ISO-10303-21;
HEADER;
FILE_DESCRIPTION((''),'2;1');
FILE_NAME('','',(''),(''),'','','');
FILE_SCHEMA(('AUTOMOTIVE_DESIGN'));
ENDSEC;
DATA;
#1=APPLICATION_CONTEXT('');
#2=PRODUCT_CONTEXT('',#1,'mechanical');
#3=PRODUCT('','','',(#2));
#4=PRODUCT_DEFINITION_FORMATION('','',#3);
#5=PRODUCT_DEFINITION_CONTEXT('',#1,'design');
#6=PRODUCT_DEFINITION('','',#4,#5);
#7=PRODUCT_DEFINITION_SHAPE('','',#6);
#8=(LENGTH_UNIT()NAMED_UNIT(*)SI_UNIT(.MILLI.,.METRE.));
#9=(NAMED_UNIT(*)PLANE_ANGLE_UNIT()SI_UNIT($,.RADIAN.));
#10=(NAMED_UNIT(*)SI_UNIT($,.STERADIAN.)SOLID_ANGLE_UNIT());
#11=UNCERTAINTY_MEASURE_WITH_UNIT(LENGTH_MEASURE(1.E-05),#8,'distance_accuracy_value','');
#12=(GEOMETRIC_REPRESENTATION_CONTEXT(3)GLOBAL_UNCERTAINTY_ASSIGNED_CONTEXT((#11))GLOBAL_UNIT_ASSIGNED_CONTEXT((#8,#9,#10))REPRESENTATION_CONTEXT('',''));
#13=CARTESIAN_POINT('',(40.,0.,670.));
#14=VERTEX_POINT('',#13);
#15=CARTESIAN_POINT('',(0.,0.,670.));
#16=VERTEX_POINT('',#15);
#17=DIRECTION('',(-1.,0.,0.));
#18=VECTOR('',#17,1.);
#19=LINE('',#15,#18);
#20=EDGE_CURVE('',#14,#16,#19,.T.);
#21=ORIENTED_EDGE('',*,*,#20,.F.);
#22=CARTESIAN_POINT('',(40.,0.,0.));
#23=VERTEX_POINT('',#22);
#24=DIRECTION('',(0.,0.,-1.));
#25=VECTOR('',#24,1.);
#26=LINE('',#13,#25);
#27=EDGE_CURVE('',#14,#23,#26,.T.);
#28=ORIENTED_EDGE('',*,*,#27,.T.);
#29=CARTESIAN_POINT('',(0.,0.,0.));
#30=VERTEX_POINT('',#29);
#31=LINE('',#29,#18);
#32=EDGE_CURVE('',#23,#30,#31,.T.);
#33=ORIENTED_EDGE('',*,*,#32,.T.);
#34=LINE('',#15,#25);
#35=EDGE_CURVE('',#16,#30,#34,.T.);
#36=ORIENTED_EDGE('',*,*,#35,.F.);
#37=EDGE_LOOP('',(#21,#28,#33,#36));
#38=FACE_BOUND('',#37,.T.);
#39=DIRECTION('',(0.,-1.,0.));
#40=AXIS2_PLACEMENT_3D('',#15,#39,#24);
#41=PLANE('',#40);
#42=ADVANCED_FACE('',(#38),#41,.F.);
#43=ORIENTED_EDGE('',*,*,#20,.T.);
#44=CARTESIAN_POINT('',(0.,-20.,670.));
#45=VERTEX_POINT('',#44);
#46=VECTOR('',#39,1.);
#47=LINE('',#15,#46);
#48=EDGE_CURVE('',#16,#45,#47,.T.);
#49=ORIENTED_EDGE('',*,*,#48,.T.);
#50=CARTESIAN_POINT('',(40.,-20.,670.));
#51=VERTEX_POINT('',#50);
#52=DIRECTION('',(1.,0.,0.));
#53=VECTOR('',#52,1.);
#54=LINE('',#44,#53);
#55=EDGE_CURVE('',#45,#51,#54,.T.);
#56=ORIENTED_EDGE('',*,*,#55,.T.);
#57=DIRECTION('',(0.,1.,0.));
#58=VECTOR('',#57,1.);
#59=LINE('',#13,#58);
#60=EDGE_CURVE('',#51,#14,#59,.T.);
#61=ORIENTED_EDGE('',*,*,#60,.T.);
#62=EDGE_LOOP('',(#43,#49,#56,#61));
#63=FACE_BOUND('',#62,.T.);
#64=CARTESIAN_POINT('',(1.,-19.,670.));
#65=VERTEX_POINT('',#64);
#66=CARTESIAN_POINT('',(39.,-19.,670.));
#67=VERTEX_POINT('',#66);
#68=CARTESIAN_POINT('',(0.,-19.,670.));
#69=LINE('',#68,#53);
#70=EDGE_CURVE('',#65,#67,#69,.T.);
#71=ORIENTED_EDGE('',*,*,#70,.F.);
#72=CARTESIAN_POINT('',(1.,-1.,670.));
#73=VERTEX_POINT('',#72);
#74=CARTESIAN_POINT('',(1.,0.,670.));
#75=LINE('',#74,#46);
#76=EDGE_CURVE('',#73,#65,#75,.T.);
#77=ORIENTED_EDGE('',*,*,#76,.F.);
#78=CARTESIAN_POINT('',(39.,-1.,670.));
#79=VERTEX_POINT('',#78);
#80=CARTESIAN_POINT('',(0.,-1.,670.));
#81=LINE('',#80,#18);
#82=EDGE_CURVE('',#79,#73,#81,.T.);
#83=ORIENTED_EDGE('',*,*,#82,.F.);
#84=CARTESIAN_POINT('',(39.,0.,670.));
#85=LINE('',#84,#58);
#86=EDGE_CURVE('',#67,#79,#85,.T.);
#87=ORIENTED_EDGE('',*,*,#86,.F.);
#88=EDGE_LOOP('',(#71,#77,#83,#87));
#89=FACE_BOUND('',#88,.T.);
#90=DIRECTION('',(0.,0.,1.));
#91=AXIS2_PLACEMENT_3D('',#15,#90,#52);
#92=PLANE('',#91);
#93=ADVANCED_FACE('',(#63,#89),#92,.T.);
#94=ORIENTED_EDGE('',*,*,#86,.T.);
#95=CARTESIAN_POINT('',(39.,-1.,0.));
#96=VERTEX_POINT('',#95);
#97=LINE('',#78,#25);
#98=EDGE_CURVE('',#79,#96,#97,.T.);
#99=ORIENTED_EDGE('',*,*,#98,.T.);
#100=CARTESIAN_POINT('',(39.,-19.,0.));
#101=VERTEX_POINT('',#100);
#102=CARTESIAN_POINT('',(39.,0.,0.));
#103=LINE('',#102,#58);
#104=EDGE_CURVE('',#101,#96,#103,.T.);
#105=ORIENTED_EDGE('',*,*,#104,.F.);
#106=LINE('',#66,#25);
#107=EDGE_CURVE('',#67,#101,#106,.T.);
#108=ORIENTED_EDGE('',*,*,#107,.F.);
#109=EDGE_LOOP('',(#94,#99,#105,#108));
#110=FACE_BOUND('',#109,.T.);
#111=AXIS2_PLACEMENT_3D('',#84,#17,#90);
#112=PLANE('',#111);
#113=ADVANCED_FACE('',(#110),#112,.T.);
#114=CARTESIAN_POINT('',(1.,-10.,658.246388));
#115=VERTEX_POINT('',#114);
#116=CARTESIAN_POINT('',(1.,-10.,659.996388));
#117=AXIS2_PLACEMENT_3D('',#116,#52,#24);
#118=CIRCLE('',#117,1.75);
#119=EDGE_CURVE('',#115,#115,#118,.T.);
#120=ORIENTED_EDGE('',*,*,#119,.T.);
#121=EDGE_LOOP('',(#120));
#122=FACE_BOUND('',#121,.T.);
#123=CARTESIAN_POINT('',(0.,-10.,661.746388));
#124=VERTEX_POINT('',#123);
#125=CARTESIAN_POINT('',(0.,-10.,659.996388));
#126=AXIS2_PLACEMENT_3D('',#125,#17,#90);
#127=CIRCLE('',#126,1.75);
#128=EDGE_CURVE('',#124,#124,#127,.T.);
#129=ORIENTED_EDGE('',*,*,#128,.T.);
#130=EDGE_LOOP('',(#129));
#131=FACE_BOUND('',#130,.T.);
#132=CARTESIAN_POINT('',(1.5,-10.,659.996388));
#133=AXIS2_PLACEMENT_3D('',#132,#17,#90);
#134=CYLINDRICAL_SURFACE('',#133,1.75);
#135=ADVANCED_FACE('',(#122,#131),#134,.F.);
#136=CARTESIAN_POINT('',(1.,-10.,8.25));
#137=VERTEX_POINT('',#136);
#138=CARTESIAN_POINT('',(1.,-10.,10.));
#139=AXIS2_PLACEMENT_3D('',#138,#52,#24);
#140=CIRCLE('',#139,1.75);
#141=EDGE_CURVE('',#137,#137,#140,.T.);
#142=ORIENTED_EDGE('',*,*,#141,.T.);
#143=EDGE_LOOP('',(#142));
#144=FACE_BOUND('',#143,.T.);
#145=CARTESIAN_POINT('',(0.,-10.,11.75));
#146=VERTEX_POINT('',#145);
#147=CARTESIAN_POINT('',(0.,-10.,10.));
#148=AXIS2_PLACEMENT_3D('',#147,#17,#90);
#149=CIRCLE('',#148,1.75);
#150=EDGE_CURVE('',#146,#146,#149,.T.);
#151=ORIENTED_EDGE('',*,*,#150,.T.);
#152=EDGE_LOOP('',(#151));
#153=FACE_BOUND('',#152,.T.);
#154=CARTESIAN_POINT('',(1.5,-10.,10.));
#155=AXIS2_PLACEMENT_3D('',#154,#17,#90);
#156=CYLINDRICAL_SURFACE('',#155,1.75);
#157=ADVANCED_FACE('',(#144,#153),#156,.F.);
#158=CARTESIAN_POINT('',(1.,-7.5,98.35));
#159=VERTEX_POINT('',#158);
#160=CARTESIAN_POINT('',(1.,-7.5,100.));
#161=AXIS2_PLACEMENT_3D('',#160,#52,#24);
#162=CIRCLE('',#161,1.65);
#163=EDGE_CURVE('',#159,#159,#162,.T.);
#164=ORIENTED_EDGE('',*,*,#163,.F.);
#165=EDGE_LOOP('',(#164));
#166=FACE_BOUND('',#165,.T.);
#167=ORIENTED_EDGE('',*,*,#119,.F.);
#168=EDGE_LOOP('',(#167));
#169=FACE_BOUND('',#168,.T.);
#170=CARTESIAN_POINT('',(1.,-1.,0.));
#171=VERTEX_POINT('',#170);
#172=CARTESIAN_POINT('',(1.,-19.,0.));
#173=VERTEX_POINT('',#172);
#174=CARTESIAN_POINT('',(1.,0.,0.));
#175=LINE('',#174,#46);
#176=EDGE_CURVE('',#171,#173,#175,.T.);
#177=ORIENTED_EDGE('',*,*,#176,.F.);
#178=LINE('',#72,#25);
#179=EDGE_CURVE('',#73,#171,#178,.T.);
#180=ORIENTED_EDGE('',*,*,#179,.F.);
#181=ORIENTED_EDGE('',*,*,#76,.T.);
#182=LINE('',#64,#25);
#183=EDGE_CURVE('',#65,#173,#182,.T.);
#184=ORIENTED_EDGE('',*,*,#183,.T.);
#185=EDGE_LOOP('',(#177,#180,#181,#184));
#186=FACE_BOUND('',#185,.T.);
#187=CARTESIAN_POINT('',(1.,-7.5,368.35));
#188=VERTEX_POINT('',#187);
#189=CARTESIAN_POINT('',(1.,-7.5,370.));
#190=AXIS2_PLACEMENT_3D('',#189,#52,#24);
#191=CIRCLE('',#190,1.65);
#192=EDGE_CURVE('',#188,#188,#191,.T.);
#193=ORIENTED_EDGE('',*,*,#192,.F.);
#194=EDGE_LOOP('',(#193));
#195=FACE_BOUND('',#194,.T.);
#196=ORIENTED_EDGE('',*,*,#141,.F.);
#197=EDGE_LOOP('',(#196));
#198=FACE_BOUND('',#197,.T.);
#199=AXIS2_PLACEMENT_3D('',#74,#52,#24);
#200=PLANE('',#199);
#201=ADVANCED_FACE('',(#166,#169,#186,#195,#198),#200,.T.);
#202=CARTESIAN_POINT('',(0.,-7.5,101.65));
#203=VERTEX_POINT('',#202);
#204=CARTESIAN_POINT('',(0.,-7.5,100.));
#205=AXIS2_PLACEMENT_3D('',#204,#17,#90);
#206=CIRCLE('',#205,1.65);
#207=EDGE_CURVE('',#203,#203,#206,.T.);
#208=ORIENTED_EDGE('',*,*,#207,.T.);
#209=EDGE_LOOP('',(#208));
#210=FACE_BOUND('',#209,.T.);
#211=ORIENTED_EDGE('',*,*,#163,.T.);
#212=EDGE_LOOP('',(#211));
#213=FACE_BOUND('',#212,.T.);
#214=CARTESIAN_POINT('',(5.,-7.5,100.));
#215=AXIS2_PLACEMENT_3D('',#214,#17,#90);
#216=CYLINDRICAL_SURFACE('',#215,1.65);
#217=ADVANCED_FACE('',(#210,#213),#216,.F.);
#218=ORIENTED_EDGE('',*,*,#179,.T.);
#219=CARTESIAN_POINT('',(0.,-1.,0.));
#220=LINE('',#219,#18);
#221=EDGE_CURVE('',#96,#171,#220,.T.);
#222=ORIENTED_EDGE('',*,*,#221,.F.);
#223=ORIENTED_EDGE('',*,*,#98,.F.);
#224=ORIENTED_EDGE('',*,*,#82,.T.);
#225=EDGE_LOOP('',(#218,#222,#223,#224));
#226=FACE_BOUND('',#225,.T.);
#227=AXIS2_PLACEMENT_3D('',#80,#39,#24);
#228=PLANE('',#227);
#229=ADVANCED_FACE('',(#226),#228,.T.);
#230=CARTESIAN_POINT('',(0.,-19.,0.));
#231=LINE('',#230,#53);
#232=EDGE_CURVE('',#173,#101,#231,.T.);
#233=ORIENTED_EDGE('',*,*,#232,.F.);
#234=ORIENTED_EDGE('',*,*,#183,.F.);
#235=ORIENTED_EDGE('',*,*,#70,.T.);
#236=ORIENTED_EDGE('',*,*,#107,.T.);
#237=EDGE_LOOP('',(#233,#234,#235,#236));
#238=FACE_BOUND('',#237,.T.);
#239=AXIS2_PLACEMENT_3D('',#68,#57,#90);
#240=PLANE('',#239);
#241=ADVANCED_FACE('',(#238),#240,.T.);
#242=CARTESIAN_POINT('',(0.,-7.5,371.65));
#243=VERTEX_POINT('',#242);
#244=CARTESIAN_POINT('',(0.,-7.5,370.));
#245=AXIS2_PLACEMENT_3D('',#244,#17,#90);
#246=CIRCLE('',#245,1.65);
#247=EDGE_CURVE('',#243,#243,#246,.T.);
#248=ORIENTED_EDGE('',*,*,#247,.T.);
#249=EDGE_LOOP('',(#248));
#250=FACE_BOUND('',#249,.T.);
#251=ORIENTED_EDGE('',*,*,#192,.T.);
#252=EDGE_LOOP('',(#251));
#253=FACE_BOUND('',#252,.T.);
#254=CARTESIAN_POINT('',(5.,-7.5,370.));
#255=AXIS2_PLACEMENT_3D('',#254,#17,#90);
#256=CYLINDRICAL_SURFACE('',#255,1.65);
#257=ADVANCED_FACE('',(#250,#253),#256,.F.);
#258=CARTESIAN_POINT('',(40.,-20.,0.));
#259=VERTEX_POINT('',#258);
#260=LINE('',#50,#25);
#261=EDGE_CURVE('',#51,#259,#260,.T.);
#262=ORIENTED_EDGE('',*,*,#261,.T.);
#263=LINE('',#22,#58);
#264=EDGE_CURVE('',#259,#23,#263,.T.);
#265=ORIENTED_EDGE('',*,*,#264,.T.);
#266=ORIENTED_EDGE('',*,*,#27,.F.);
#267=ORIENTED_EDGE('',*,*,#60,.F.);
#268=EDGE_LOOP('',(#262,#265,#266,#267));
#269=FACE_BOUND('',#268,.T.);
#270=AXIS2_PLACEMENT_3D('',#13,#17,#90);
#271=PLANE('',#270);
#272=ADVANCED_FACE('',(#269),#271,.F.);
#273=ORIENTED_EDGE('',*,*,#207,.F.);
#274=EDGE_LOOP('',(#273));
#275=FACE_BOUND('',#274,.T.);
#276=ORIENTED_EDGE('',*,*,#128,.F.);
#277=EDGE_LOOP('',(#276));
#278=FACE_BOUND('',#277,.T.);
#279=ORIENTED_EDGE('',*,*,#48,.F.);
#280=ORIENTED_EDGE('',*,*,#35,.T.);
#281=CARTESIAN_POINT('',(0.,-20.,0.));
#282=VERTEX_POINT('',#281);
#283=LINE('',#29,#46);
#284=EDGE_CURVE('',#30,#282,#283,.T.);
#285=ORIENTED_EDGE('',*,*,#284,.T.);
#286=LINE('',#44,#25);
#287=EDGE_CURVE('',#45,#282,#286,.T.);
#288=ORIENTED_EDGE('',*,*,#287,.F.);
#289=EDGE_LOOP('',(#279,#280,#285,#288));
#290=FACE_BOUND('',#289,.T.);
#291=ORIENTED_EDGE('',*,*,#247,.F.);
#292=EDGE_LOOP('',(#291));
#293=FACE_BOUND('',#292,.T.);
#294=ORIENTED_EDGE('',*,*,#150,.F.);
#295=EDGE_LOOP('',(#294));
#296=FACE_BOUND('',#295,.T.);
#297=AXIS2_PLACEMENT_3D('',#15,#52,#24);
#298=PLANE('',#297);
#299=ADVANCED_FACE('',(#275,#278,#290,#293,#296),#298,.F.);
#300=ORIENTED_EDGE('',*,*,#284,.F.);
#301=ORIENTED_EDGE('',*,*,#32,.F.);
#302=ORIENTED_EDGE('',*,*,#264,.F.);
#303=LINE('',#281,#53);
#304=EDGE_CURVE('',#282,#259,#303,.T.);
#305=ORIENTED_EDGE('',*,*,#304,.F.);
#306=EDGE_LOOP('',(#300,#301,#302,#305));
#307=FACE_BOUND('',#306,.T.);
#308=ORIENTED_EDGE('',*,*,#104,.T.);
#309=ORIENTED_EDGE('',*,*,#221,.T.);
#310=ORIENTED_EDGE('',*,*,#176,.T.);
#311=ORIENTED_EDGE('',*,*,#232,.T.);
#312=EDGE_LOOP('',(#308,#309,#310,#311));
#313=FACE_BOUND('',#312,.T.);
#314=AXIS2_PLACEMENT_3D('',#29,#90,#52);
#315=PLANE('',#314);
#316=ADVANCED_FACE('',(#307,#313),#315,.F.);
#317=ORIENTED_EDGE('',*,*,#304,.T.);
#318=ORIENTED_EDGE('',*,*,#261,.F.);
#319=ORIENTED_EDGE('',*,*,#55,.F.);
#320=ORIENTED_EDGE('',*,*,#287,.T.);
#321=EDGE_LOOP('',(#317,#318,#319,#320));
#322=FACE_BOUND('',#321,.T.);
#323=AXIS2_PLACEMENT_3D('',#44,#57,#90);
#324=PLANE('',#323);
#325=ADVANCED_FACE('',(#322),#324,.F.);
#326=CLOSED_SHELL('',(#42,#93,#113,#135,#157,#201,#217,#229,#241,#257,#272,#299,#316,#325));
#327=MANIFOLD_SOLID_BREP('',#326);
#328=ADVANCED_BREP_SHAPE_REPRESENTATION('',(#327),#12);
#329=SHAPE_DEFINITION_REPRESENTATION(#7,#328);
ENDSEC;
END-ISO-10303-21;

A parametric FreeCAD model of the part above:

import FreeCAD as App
import Part
import Sketcher


def add_polygon(sketch, points):
    """Adds a closed chain of lines whose ends are joined by coincident constraints."""
    first, n = sketch.GeometryCount, len(points)
    for a, b in zip(points, points[1:] + points[:1]):
        sketch.addGeometry(Part.LineSegment(App.Vector(*a, 0), App.Vector(*b, 0)), False)
    for i in range(n):
        sketch.addConstraint(Sketcher.Constraint("Coincident", first + i, 2, first + (i + 1) % n, 1))

doc = App.newDocument("Part")
body = doc.addObject("PartDesign::Body", "Body")

sketch1 = body.newObject("Sketcher::SketchObject", "Sketch")
sketch1.AttachmentSupport = (doc.getObject("XY_Plane"), [""])
sketch1.MapMode = "FlatFace"
add_polygon(sketch1, [(0, 0), (0, -20), (40, -20), (40, 0)])
add_polygon(sketch1, [(39, -19), (1, -19), (1, -1), (39, -1)])
sketch1.addConstraint([
    Sketcher.Constraint("Vertical", 0),
    Sketcher.Constraint("Horizontal", 1),
    Sketcher.Constraint("Vertical", 2),
    Sketcher.Constraint("Horizontal", 3),
    Sketcher.Constraint("Horizontal", 4),
    Sketcher.Constraint("Vertical", 5),
    Sketcher.Constraint("Horizontal", 6),
    Sketcher.Constraint("Vertical", 7),
    Sketcher.Constraint("Coincident", 3, 2, -1, 1),
    Sketcher.Constraint("DistanceX", 1, 1, 1, 2, 40.0),
    Sketcher.Constraint("DistanceX", 4, 2, 4, 1, 38.0),
    Sketcher.Constraint("DistanceY", 0, 2, 0, 1, 20.0),
    Sketcher.Constraint("DistanceY", 5, 1, 5, 2, 18.0),
    Sketcher.Constraint("DistanceX", -1, 1, 4, 2, 1.0),
    Sketcher.Constraint("DistanceY", 4, 2, -1, 1, 19.0),
])
pad1 = body.newObject("PartDesign::Pad", "Pad")
pad1.Profile = sketch1
pad1.Length = 670

sketch2 = body.newObject("Sketcher::SketchObject", "Sketch001")
sketch2.AttachmentSupport = (doc.getObject("YZ_Plane"), [""])
sketch2.MapMode = "FlatFace"
sketch2.addGeometry([
    Part.Circle(App.Vector(-10, 660, 0), App.Vector(0, 0, 1), 1.8),
    Part.Circle(App.Vector(-10, 10, 0), App.Vector(0, 0, 1), 1.8),
], False)
sketch2.addConstraint([
    Sketcher.Constraint("Equal", 0, 1),
    Sketcher.Constraint("Vertical", 0, 3, 1, 3),
    Sketcher.Constraint("Diameter", 0, 3.5),
    Sketcher.Constraint("DistanceX", 0, 3, -1, 1, 10.0),
    Sketcher.Constraint("DistanceY", -1, 1, 1, 3, 10.0),
    Sketcher.Constraint("DistanceY", -1, 1, 0, 3, 659.996388),
])
pocket1 = body.newObject("PartDesign::Pocket", "Pocket")
pocket1.Profile = sketch2
pocket1.Length = 1.5
pocket1.Reversed = True

sketch3 = body.newObject("Sketcher::SketchObject", "Sketch002")
sketch3.AttachmentSupport = (doc.getObject("YZ_Plane"), [""])
sketch3.MapMode = "FlatFace"
sketch3.addGeometry([
    Part.Circle(App.Vector(-7.5, 100, 0), App.Vector(0, 0, 1), 1.6),
    Part.Circle(App.Vector(-7.5, 370, 0), App.Vector(0, 0, 1), 1.6),
], False)
sketch3.addConstraint([
    Sketcher.Constraint("Equal", 0, 1),
    Sketcher.Constraint("Vertical", 0, 3, 1, 3),
    Sketcher.Constraint("Diameter", 0, 3.3),
    Sketcher.Constraint("DistanceY", -1, 1, 0, 3, 100.0),
    Sketcher.Constraint("DistanceY", -1, 1, 1, 3, 370.0),
    Sketcher.Constraint("DistanceX", 0, 3, -1, 1, 7.5),
])
pocket2 = body.newObject("PartDesign::Pocket", "Pocket001")
pocket2.Profile = sketch3
pocket2.Length = 5
pocket2.Reversed = True

doc.recompute()
